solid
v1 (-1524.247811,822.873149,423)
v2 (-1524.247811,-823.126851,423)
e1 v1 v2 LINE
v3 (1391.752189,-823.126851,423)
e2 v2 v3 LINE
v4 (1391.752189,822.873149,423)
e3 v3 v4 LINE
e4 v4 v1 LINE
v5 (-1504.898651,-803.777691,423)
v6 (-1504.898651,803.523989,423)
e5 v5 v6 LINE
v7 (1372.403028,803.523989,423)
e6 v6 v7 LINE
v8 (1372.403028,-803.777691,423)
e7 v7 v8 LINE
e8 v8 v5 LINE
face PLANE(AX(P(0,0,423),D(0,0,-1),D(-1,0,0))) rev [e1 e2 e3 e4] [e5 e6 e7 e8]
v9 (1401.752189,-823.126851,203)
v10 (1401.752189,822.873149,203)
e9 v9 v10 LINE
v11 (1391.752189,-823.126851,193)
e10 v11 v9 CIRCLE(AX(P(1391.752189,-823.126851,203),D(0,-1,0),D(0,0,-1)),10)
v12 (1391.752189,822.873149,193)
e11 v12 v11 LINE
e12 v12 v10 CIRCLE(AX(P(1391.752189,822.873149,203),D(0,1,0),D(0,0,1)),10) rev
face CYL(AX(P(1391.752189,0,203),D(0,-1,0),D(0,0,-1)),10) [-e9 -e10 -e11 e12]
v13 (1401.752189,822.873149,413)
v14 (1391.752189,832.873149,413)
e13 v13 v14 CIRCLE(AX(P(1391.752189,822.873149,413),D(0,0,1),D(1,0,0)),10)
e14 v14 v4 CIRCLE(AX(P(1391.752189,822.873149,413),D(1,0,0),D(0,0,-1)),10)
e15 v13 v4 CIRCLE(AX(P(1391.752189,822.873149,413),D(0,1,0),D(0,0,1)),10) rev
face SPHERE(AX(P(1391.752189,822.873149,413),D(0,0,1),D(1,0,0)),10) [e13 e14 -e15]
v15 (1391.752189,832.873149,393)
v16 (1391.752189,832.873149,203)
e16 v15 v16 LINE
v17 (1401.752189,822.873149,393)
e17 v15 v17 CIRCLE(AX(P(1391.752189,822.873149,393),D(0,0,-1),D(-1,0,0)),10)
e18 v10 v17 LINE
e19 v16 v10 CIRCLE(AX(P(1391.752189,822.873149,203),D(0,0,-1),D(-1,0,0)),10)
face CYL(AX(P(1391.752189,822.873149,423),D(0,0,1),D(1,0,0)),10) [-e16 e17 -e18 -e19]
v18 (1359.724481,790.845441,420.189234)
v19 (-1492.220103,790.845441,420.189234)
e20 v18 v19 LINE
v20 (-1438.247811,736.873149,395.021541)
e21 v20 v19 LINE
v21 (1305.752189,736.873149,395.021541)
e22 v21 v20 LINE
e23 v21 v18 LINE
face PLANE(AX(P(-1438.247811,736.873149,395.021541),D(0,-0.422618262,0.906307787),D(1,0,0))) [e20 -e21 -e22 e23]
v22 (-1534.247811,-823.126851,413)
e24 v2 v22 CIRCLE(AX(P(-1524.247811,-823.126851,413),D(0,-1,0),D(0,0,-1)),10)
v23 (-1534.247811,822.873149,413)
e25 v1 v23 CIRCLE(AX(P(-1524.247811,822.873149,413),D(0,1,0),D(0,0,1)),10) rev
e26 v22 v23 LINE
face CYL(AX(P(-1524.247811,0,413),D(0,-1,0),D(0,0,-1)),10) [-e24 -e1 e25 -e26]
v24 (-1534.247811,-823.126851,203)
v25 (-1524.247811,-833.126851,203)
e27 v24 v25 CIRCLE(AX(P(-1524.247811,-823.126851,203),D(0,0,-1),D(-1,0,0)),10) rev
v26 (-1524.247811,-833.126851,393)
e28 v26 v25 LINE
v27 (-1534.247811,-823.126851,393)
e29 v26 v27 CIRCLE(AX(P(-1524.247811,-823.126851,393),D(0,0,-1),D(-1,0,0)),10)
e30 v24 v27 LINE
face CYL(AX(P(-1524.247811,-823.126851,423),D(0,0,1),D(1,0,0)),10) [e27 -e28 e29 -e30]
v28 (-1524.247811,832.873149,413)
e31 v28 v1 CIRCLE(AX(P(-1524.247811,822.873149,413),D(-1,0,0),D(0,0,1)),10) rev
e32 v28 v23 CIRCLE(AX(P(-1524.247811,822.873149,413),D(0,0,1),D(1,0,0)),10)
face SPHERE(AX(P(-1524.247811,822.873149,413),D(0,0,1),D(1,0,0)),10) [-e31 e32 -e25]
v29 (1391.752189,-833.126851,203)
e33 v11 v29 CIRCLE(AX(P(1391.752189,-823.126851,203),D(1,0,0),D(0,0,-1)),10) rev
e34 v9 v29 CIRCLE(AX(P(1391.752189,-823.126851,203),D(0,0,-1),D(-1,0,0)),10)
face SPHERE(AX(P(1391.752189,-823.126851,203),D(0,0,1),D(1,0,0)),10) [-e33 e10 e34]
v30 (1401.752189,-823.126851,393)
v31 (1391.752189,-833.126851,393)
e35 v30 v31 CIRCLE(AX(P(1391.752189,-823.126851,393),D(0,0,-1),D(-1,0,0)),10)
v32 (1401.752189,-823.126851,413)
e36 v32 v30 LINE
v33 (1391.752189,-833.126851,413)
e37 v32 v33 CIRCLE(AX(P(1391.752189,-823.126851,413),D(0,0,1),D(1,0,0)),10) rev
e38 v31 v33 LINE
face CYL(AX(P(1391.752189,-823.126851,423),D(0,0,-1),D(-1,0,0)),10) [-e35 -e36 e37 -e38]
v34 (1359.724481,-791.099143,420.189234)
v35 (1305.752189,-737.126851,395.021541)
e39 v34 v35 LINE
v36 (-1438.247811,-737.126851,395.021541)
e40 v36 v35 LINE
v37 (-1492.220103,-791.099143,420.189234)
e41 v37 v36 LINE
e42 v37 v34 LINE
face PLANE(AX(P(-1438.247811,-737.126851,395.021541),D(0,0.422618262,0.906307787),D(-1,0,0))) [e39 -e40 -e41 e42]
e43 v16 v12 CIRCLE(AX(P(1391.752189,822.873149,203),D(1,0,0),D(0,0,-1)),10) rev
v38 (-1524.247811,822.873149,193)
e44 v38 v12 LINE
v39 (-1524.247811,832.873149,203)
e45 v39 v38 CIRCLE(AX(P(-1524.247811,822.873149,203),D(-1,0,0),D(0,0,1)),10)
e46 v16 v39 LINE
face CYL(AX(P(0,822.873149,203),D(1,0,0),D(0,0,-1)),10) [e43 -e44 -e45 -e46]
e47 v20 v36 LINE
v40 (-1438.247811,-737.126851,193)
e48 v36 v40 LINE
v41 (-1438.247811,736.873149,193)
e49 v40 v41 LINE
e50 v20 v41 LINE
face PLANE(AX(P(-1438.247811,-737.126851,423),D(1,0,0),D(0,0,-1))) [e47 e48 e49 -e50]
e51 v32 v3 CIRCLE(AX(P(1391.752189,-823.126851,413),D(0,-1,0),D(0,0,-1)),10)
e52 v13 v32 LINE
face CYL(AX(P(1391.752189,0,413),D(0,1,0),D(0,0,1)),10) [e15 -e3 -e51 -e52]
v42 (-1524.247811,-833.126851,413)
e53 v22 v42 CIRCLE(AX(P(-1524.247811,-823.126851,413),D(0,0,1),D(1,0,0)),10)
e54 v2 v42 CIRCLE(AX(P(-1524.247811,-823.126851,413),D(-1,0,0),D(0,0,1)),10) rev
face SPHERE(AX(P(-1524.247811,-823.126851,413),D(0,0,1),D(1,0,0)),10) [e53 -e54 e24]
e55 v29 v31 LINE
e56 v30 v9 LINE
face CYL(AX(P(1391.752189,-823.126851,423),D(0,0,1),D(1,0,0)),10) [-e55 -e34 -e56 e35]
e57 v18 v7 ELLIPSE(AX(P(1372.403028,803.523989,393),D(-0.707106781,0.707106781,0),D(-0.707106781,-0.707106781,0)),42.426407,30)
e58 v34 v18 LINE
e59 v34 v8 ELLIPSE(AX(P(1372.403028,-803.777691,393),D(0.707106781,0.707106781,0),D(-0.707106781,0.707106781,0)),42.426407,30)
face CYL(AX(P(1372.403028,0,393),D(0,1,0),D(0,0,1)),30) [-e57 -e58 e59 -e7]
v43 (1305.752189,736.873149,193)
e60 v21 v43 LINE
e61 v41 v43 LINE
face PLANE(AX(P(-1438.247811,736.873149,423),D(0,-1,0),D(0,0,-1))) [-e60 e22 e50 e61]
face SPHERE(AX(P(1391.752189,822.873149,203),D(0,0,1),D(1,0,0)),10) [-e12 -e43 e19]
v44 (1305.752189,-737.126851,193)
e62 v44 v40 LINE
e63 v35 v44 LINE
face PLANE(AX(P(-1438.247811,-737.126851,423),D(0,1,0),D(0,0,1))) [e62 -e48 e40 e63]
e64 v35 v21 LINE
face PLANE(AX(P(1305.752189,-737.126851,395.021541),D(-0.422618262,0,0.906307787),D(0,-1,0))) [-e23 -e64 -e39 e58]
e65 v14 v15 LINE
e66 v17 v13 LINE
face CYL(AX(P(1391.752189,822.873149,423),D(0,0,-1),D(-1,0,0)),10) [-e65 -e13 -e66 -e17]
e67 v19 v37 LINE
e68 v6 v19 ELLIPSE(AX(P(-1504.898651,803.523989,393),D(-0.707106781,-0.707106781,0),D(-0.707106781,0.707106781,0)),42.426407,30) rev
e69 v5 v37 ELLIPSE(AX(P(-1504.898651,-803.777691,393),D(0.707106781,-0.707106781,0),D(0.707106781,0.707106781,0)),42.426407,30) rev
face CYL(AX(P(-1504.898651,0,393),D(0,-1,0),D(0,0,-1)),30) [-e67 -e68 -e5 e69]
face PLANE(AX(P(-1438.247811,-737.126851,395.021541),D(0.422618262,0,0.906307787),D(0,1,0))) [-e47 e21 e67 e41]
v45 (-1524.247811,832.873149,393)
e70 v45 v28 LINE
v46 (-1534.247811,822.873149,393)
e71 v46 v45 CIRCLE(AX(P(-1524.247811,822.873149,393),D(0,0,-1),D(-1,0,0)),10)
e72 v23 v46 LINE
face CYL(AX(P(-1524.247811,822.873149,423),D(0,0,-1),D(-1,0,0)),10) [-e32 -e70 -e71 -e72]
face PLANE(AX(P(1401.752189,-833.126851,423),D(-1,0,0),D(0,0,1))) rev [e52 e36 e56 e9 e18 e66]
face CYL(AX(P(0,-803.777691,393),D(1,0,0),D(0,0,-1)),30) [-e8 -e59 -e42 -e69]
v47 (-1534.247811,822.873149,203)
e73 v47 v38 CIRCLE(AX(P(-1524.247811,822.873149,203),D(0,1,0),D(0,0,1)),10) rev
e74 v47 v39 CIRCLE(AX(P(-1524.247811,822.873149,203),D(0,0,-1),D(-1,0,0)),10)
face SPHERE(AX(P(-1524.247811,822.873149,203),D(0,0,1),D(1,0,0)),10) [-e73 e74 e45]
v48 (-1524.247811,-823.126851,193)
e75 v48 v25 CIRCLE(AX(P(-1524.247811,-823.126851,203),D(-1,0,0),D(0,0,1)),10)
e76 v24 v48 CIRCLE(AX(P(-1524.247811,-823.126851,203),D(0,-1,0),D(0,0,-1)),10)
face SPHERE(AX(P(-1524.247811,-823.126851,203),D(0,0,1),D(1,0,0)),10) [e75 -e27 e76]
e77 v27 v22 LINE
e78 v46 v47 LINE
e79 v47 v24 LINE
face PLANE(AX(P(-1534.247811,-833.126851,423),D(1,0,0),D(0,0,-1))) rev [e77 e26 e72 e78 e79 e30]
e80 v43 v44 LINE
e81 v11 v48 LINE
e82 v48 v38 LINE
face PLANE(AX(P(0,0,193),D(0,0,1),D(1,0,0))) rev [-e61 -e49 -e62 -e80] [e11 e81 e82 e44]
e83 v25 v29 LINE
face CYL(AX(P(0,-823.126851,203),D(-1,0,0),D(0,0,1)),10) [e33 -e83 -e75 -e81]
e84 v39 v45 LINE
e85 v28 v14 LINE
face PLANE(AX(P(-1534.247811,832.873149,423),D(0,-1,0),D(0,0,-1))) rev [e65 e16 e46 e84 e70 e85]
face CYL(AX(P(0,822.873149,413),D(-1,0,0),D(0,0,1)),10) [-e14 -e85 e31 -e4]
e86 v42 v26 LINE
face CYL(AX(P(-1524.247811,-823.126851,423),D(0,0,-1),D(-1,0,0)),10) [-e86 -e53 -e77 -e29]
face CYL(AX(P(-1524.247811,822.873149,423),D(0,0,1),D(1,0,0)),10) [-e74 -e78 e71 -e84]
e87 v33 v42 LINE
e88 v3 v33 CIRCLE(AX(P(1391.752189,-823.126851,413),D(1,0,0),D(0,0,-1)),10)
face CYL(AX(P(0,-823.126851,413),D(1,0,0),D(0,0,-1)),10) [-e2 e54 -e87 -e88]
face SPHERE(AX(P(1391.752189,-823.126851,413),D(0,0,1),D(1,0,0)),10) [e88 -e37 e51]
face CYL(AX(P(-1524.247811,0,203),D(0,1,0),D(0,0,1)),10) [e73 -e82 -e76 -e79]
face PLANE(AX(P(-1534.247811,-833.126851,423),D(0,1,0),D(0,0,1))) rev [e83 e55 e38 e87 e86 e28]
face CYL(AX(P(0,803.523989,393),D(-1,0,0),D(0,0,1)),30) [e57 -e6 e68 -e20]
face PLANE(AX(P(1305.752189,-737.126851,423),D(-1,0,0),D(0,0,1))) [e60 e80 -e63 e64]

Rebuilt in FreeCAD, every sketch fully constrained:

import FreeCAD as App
import Part
import Sketcher

V = App.Vector
Q = App.Units.Quantity


def edges_at(feature, points):
    """Names of the edges that pass closest to the given points."""
    edges = feature.Shape.Edges
    near = lambda p: min(range(len(edges)), key=lambda i: edges[i].distToShape(Part.Vertex(*p))[0])
    return sorted({f"Edge{near(p) + 1}" for p in points})

doc = App.newDocument("Part")
params = doc.addObject("Spreadsheet::Sheet", "Params")
for row, (alias, value) in enumerate([
    ("sketch1_width", "2936 mm"),
    ("sketch1_width2", "2744 mm"),
    ("sketch1_height", "1666 mm"),
    ("sketch1_height2", "1474 mm"),
    ("pad1_length", "30 mm"),
    ("chamfer_size", "60 mm"),
    ("chamfer_size2", "27.978459 mm"),
    ("fillet_radius", "30 mm"),
    ("fillet2_radius", "10 mm"),
    ("sketch2_width", "2936 mm"),
    ("sketch2_width2", "2744 mm"),
    ("sketch2_height", "1666 mm"),
    ("sketch2_height2", "1474 mm"),
    ("pad2_length", "200 mm"),
    ("fillet3_radius", "10 mm"),
], start=1):
    params.set(f"A{row}", alias)
    params.set(f"B{row}", "=" + value)
    params.setAlias(f"B{row}", alias)

body = doc.addObject("PartDesign::Body", "Body")

# Sketch on XY plane
sketch1 = body.newObject("Sketcher::SketchObject", "Sketch")
sketch1.AttachmentSupport = (doc.getObject("XY_Plane"), [""])
sketch1.MapMode = "FlatFace"
sketch1.AttachmentOffset = App.Placement(V(0, 0, 393), App.Rotation())
sketch1.addGeometry(Part.LineSegment(V(-1534.247811, 832.873149, 0), V(-1534.247811, -833.126851, 0)), False)
sketch1.addGeometry(Part.LineSegment(V(-1534.247811, -833.126851, 0), V(1401.752189, -833.126851, 0)), False)
sketch1.addGeometry(Part.LineSegment(V(1401.752189, -833.126851, 0), V(1401.752189, 832.873149, 0)), False)
sketch1.addGeometry(Part.LineSegment(V(1401.752189, 832.873149, 0), V(-1534.247811, 832.873149, 0)), False)
sketch1.addGeometry(Part.LineSegment(V(1305.752189, -737.126851, 0), V(-1438.247811, -737.126851, 0)), False)
sketch1.addGeometry(Part.LineSegment(V(-1438.247811, -737.126851, 0), V(-1438.247811, 736.873149, 0)), False)
sketch1.addGeometry(Part.LineSegment(V(-1438.247811, 736.873149, 0), V(1305.752189, 736.873149, 0)), False)
sketch1.addGeometry(Part.LineSegment(V(1305.752189, 736.873149, 0), V(1305.752189, -737.126851, 0)), False)
sketch1.addConstraint(Sketcher.Constraint("Coincident", 0, 2, 1, 1))
sketch1.addConstraint(Sketcher.Constraint("Coincident", 1, 2, 2, 1))
sketch1.addConstraint(Sketcher.Constraint("Coincident", 2, 2, 3, 1))
sketch1.addConstraint(Sketcher.Constraint("Coincident", 3, 2, 0, 1))
sketch1.addConstraint(Sketcher.Constraint("Coincident", 4, 2, 5, 1))
sketch1.addConstraint(Sketcher.Constraint("Coincident", 5, 2, 6, 1))
sketch1.addConstraint(Sketcher.Constraint("Coincident", 6, 2, 7, 1))
sketch1.addConstraint(Sketcher.Constraint("Coincident", 7, 2, 4, 1))
sketch1.addConstraint(Sketcher.Constraint("Vertical", 0))
sketch1.addConstraint(Sketcher.Constraint("Horizontal", 1))
sketch1.addConstraint(Sketcher.Constraint("Vertical", 2))
sketch1.addConstraint(Sketcher.Constraint("Horizontal", 3))
sketch1.addConstraint(Sketcher.Constraint("Horizontal", 4))
sketch1.addConstraint(Sketcher.Constraint("Vertical", 5))
sketch1.addConstraint(Sketcher.Constraint("Horizontal", 6))
sketch1.addConstraint(Sketcher.Constraint("Vertical", 7))
sketch1.addConstraint(Sketcher.Constraint("DistanceX", 1, 1, 1, 2, Q("2936 mm")))
sketch1.addConstraint(Sketcher.Constraint("DistanceX", 4, 2, 4, 1, Q("2744 mm")))
sketch1.addConstraint(Sketcher.Constraint("DistanceY", 0, 2, 0, 1, Q("1666 mm")))
sketch1.addConstraint(Sketcher.Constraint("DistanceY", 5, 1, 5, 2, Q("1474 mm")))
sketch1.addConstraint(Sketcher.Constraint("DistanceX", 0, 2, 4, 2, Q("96 mm")))
sketch1.addConstraint(Sketcher.Constraint("DistanceY", 0, 2, 4, 2, Q("96 mm")))
sketch1.addConstraint(Sketcher.Constraint("DistanceX", 0, 2, -1, 1, Q("1534.247811 mm")))
sketch1.addConstraint(Sketcher.Constraint("DistanceY", 0, 2, -1, 1, Q("833.126851 mm")))
sketch1.setExpression("Constraints[16]", "Params.sketch1_width")
sketch1.setExpression("Constraints[17]", "Params.sketch1_width2")
sketch1.setExpression("Constraints[18]", "Params.sketch1_height")
sketch1.setExpression("Constraints[19]", "Params.sketch1_height2")
pad1 = body.newObject("PartDesign::Pad", "Pad")
pad1.Profile = sketch1
pad1.setExpression("Length", "Params.pad1_length")
doc.recompute()

chamfer = body.newObject("PartDesign::Chamfer", "Chamfer")
chamfer.Base = (pad1, edges_at(pad1, [
    (1305.752, -0.127, 423),
    (-66.248, 736.873, 423),
    (-1438.248, -0.127, 423),
    (-66.248, -737.127, 423),
]))
chamfer.ChamferType = "Two distances"
chamfer.setExpression("Size", "Params.chamfer_size")
chamfer.setExpression("Size2", "Params.chamfer_size2")
chamfer.FlipDirection = True
doc.recompute()

fillet = body.newObject("PartDesign::Fillet", "Fillet")
fillet.Base = (chamfer, edges_at(chamfer, [
    (-66.248, -797.127, 423),
    (1365.752, -0.127, 423),
    (-66.248, 796.873, 423),
    (-1498.248, -0.127, 423),
]))
fillet.setExpression("Radius", "Params.fillet_radius")
doc.recompute()

fillet2 = body.newObject("PartDesign::Fillet", "Fillet001")
fillet2.Base = (fillet, edges_at(fillet, [
    (-1534.248, -0.127, 423),
    (-66.248, -833.127, 423),
    (1401.752, -0.127, 423),
    (-66.248, 832.873, 423),
    (1401.752, -833.127, 408),
    (-1534.248, -833.127, 408),
    (-1534.248, 832.873, 408),
    (1401.752, 832.873, 408),
]))
fillet2.setExpression("Radius", "Params.fillet2_radius")

# Sketch on XY plane
sketch2 = body.newObject("Sketcher::SketchObject", "Sketch001")
sketch2.AttachmentSupport = (doc.getObject("XY_Plane"), [""])
sketch2.MapMode = "FlatFace"
sketch2.AttachmentOffset = App.Placement(V(0, 0, 393), App.Rotation())
sketch2.addGeometry(Part.LineSegment(V(1401.752189, 832.873149, 0), V(1401.752189, -833.126851, 0)), False)
sketch2.addGeometry(Part.LineSegment(V(1401.752189, -833.126851, 0), V(-1534.247811, -833.126851, 0)), False)
sketch2.addGeometry(Part.LineSegment(V(-1534.247811, -833.126851, 0), V(-1534.247811, 832.873149, 0)), False)
sketch2.addGeometry(Part.LineSegment(V(-1534.247811, 832.873149, 0), V(1401.752189, 832.873149, 0)), False)
sketch2.addGeometry(Part.LineSegment(V(-1438.247811, -737.126851, 0), V(1305.752189, -737.126851, 0)), False)
sketch2.addGeometry(Part.LineSegment(V(1305.752189, -737.126851, 0), V(1305.752189, 736.873149, 0)), False)
sketch2.addGeometry(Part.LineSegment(V(1305.752189, 736.873149, 0), V(-1438.247811, 736.873149, 0)), False)
sketch2.addGeometry(Part.LineSegment(V(-1438.247811, 736.873149, 0), V(-1438.247811, -737.126851, 0)), False)
sketch2.addConstraint(Sketcher.Constraint("Coincident", 0, 2, 1, 1))
sketch2.addConstraint(Sketcher.Constraint("Coincident", 1, 2, 2, 1))
sketch2.addConstraint(Sketcher.Constraint("Coincident", 2, 2, 3, 1))
sketch2.addConstraint(Sketcher.Constraint("Coincident", 3, 2, 0, 1))
sketch2.addConstraint(Sketcher.Constraint("Coincident", 4, 2, 5, 1))
sketch2.addConstraint(Sketcher.Constraint("Coincident", 5, 2, 6, 1))
sketch2.addConstraint(Sketcher.Constraint("Coincident", 6, 2, 7, 1))
sketch2.addConstraint(Sketcher.Constraint("Coincident", 7, 2, 4, 1))
sketch2.addConstraint(Sketcher.Constraint("Vertical", 0))
sketch2.addConstraint(Sketcher.Constraint("Horizontal", 1))
sketch2.addConstraint(Sketcher.Constraint("Vertical", 2))
sketch2.addConstraint(Sketcher.Constraint("Horizontal", 3))
sketch2.addConstraint(Sketcher.Constraint("Horizontal", 4))
sketch2.addConstraint(Sketcher.Constraint("Vertical", 5))
sketch2.addConstraint(Sketcher.Constraint("Horizontal", 6))
sketch2.addConstraint(Sketcher.Constraint("Vertical", 7))
sketch2.addConstraint(Sketcher.Constraint("DistanceX", 1, 2, 1, 1, Q("2936 mm")))
sketch2.addConstraint(Sketcher.Constraint("DistanceX", 4, 1, 4, 2, Q("2744 mm")))
sketch2.addConstraint(Sketcher.Constraint("DistanceY", 0, 2, 0, 1, Q("1666 mm")))
sketch2.addConstraint(Sketcher.Constraint("DistanceY", 5, 1, 5, 2, Q("1474 mm")))
sketch2.addConstraint(Sketcher.Constraint("DistanceX", 4, 2, 0, 2, Q("96 mm")))
sketch2.addConstraint(Sketcher.Constraint("DistanceY", 0, 2, 4, 2, Q("96 mm")))
sketch2.addConstraint(Sketcher.Constraint("DistanceX", -1, 1, 0, 2, Q("1401.752189 mm")))
sketch2.addConstraint(Sketcher.Constraint("DistanceY", 0, 2, -1, 1, Q("833.126851 mm")))
sketch2.setExpression("Constraints[16]", "Params.sketch2_width")
sketch2.setExpression("Constraints[17]", "Params.sketch2_width2")
sketch2.setExpression("Constraints[18]", "Params.sketch2_height")
sketch2.setExpression("Constraints[19]", "Params.sketch2_height2")
pad2 = body.newObject("PartDesign::Pad", "Pad001")
pad2.Profile = sketch2
pad2.setExpression("Length", "Params.pad2_length")
pad2.Reversed = True
doc.recompute()

fillet3 = body.newObject("PartDesign::Fillet", "Fillet002")
fillet3.Base = (pad2, edges_at(pad2, [
    (-1534.248, -833.127, 293),
    (-66.248, -833.127, 193),
    (1401.752, -833.127, 293),
    (1401.752, -0.127, 193),
    (1401.752, 832.873, 293),
    (-66.248, 832.873, 193),
    (-1534.248, -0.127, 193),
    (-1534.248, 832.873, 293),
]))
fillet3.setExpression("Radius", "Params.fillet3_radius")

doc.recompute()
